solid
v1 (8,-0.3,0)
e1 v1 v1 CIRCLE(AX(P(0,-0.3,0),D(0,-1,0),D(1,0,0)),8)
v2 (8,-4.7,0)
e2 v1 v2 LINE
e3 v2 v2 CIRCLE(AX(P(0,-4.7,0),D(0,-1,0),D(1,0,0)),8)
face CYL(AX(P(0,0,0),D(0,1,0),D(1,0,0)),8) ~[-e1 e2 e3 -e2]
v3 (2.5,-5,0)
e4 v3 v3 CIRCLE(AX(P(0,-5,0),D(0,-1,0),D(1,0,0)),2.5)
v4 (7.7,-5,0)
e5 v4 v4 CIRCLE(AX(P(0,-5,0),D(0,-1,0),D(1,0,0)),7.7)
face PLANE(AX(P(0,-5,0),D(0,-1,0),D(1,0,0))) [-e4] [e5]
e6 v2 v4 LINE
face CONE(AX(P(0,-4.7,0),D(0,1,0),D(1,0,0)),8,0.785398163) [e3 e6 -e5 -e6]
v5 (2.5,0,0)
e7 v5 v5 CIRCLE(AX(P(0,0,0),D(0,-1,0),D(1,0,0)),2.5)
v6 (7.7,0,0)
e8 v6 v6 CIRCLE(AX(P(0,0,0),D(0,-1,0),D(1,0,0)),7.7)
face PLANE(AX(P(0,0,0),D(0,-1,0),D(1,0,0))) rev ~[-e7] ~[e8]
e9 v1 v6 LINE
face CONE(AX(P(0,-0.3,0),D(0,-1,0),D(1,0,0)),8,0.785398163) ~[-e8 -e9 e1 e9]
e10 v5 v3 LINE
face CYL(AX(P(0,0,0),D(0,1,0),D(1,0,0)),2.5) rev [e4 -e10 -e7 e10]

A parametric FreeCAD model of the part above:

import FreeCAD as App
import Part
import Sketcher
from FreeCAD import Vector


def edges_at(feature, points):
    """Names of the edges that pass closest to the given points."""
    edges = feature.Shape.Edges
    near = lambda p: min(range(len(edges)), key=lambda i: edges[i].distToShape(Part.Vertex(*p))[0])
    return sorted({f"Edge{near(p) + 1}" for p in points})

doc = App.newDocument("Part")
params = doc.addObject("Spreadsheet::Sheet", "Params")
for row, (alias, value) in enumerate([
    ("sketch1_diameter", "16 mm"),
    ("sketch1_diameter2", "5 mm"),
    ("pad1_length", "5 mm"),
    ("chamfer_size", "0.3 mm"),
], start=1):
    params.set(f"A{row}", alias)
    params.set(f"B{row}", "=" + value)
    params.setAlias(f"B{row}", alias)

body = doc.addObject("PartDesign::Body", "Body")

sketch1 = body.newObject("Sketcher::SketchObject", "Sketch")
sketch1.AttachmentSupport = (doc.getObject("XZ_Plane"), [""])
sketch1.MapMode = "FlatFace"
sketch1.addGeometry([
    Part.Circle(Vector(0, 0, 0), Vector(0, 0, 1), 8),
    Part.Circle(Vector(0, 0, 0), Vector(0, 0, 1), 2.5),
], False)
sketch1.addConstraint([
    Sketcher.Constraint("Coincident", 0, 3, -1, 1),
    Sketcher.Constraint("Coincident", 1, 3, -1, 1),
    Sketcher.Constraint("Diameter", 0, 16.0),
    Sketcher.Constraint("Diameter", 1, 5.0),
])
sketch1.setExpression("Constraints[2]", "Params.sketch1_diameter")
sketch1.setExpression("Constraints[3]", "Params.sketch1_diameter2")
pad1 = body.newObject("PartDesign::Pad", "Pad")
pad1.Profile = sketch1
pad1.setExpression("Length", "Params.pad1_length")
doc.recompute()

chamfer = body.newObject("PartDesign::Chamfer", "Chamfer")
chamfer.Base = (pad1, edges_at(pad1, [(-8, 0, 0), (-8, -5, 0)]))
chamfer.setExpression("Size", "Params.chamfer_size")

doc.recompute()
